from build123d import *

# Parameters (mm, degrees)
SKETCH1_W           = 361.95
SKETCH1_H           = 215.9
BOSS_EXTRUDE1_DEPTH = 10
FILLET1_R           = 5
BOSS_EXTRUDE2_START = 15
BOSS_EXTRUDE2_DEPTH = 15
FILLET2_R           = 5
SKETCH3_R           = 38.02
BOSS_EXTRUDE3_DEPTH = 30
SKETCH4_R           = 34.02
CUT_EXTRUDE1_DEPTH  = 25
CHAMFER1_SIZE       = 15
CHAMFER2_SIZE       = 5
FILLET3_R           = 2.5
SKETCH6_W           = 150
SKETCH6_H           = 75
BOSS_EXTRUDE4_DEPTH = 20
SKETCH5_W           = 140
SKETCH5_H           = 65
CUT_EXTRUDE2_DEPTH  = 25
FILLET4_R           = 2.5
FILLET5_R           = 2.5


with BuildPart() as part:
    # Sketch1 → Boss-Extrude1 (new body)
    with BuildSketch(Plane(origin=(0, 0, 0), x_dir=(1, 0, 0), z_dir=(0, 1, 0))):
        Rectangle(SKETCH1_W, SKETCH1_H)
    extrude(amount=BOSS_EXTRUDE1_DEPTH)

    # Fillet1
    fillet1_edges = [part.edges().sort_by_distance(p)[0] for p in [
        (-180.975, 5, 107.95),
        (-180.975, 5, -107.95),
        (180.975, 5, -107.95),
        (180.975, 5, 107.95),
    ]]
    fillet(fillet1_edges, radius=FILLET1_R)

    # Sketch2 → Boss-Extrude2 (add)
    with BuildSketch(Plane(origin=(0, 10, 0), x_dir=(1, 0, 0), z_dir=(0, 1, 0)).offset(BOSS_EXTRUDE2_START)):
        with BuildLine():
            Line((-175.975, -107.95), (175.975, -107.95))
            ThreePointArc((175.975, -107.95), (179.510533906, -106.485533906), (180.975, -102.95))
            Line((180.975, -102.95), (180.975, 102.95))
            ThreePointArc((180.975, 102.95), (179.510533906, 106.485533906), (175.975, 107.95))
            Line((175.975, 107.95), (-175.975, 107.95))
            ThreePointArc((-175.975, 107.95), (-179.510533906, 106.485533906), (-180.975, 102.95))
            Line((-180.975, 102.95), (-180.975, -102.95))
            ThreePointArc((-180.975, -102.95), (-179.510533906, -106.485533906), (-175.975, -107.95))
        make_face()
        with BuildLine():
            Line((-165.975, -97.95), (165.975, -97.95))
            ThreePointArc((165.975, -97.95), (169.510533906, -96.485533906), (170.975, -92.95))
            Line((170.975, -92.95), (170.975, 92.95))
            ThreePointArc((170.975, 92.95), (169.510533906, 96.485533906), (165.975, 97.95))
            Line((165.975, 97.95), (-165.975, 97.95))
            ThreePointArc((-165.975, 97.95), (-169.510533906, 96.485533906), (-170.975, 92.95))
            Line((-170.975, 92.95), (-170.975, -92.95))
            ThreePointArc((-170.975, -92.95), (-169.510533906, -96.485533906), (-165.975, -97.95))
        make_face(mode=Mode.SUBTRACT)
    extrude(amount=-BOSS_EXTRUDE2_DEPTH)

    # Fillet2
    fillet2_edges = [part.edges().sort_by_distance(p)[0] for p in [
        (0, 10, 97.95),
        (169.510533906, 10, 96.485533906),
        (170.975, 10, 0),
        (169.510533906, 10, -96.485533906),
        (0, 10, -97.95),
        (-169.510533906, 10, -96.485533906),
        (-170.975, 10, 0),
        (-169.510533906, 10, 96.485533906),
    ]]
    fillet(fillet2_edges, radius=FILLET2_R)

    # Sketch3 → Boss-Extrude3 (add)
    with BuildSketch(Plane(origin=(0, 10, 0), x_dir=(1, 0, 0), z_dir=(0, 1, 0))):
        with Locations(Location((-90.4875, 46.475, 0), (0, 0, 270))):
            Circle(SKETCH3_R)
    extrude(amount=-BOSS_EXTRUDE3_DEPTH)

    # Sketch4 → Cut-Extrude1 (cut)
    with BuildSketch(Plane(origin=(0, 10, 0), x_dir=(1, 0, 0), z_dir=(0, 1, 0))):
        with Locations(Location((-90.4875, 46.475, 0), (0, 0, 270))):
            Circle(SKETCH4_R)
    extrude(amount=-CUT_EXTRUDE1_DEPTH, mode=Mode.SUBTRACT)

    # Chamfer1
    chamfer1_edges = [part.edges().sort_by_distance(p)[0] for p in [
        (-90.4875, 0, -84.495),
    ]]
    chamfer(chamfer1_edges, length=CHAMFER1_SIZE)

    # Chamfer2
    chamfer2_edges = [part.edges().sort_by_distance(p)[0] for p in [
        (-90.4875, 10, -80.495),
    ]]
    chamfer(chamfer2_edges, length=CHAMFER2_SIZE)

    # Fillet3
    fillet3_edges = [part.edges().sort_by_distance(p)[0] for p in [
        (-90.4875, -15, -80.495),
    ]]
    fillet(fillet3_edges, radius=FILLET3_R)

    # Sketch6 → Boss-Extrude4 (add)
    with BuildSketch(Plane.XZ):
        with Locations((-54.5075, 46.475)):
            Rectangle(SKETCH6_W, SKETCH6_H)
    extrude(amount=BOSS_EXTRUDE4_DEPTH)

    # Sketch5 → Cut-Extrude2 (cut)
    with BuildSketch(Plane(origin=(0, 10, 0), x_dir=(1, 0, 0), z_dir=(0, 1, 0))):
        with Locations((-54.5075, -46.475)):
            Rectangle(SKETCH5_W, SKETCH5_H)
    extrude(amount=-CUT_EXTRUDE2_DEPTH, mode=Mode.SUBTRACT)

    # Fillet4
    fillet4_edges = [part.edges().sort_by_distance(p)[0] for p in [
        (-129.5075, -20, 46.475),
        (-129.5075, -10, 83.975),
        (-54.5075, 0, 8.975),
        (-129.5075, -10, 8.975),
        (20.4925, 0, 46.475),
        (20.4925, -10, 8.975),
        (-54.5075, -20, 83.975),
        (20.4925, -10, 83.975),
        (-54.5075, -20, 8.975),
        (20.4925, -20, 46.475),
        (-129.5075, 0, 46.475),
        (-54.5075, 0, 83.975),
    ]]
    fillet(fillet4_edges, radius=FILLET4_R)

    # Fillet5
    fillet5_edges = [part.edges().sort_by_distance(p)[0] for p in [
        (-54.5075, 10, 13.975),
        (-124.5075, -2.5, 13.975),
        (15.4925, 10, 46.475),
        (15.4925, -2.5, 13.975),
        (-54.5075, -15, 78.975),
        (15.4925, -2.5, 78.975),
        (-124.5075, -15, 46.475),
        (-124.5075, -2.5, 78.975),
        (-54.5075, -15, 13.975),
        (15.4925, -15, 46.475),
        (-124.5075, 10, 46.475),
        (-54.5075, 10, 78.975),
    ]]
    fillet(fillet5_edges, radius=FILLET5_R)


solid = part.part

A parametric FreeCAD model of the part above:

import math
import FreeCAD as App
import Part
import Sketcher
from FreeCAD import Vector
Q = App.Units.Quantity


def edges_at(feature, points):
    """Names of the edges that pass closest to the given points."""
    edges = feature.Shape.Edges
    near = lambda p: min(range(len(edges)), key=lambda i: edges[i].distToShape(Part.Vertex(*p))[0])
    return sorted({f"Edge{near(p) + 1}" for p in points})

doc = App.newDocument("Part")
body = doc.addObject("PartDesign::Body", "Body")

# Sketch on XZ plane
sketch1 = body.newObject("Sketcher::SketchObject", "Sketch")
sketch1.AttachmentSupport = (doc.getObject("XZ_Plane"), [""])
sketch1.MapMode = "FlatFace"
sketch1.addGeometry([
    Part.LineSegment(Vector(-181, -108, 0), Vector(-181, 108, 0)),
    Part.LineSegment(Vector(-181, 108, 0), Vector(181, 108, 0)),
    Part.LineSegment(Vector(181, 108, 0), Vector(181, -108, 0)),
    Part.LineSegment(Vector(181, -108, 0), Vector(-181, -108, 0)),
], False)
sketch1.addConstraint([
    Sketcher.Constraint("Coincident", 0, 2, 1, 1),
    Sketcher.Constraint("Coincident", 1, 2, 2, 1),
    Sketcher.Constraint("Coincident", 2, 2, 3, 1),
    Sketcher.Constraint("Coincident", 3, 2, 0, 1),
    Sketcher.Constraint("Vertical", 0),
    Sketcher.Constraint("Horizontal", 1),
    Sketcher.Constraint("Vertical", 2),
    Sketcher.Constraint("Horizontal", 3),
    Sketcher.Constraint("Symmetric", 0, 2, 2, 2, -1, 1),
    Sketcher.Constraint("DistanceY", 0, 1, 0, 2, Q("215.9 mm")),
    Sketcher.Constraint("DistanceX", 1, 1, 1, 2, Q("361.95 mm")),
])
pad1 = body.newObject("PartDesign::Pad", "Pad")
pad1.Profile = sketch1
pad1.Length = 10
pad1.Reversed = True
doc.recompute()

fillet = body.newObject("PartDesign::Fillet", "Fillet")
fillet.Base = (pad1, edges_at(pad1, [
    (-180.975, 5, 107.95),
    (-180.975, 5, -107.95),
    (180.975, 5, -107.95),
    (180.975, 5, 107.95),
]))
fillet.Radius = 5

# Sketch on XZ plane
sketch2 = body.newObject("Sketcher::SketchObject", "Sketch001")
sketch2.AttachmentSupport = (doc.getObject("XZ_Plane"), [""])
sketch2.MapMode = "FlatFace"
sketch2.AttachmentOffset = App.Placement(Vector(0, 0, -25), App.Rotation())
sketch2.addGeometry([
    Part.LineSegment(Vector(-176, 108, 0), Vector(176, 108, 0)),  # 0
    Part.ArcOfCircle(Part.Circle(Vector(176, 103, 0), Vector(0, 0, 1), 5), math.radians(0), math.radians(90)),  # 1
    Part.LineSegment(Vector(181, 103, 0), Vector(181, -103, 0)),  # 2
    Part.ArcOfCircle(Part.Circle(Vector(176, -103, 0), Vector(0, 0, 1), 5), math.radians(-90), math.radians(0)),  # 3
    Part.LineSegment(Vector(176, -108, 0), Vector(-176, -108, 0)),  # 4
    Part.ArcOfCircle(Part.Circle(Vector(-176, -103, 0), Vector(0, 0, 1), 5), math.radians(180), math.radians(270)),  # 5
    Part.LineSegment(Vector(-181, -103, 0), Vector(-181, 103, 0)),  # 6
    Part.ArcOfCircle(Part.Circle(Vector(-176, 103, 0), Vector(0, 0, 1), 5), math.radians(90), math.radians(180)),  # 7
    Part.LineSegment(Vector(166, 98, 0), Vector(-166, 98, 0)),  # 8
    Part.ArcOfCircle(Part.Circle(Vector(-166, 93, 0), Vector(0, 0, 1), 5), math.radians(90), math.radians(180)),  # 9
    Part.LineSegment(Vector(-171, 93, 0), Vector(-171, -93, 0)),  # 10
    Part.ArcOfCircle(Part.Circle(Vector(-166, -93, 0), Vector(0, 0, 1), 5), math.radians(180), math.radians(270)),  # 11
    Part.LineSegment(Vector(-166, -98, 0), Vector(166, -98, 0)),  # 12
    Part.ArcOfCircle(Part.Circle(Vector(166, -93, 0), Vector(0, 0, 1), 5), math.radians(-90), math.radians(0)),  # 13
    Part.LineSegment(Vector(171, -93, 0), Vector(171, 93, 0)),  # 14
    Part.ArcOfCircle(Part.Circle(Vector(166, 93, 0), Vector(0, 0, 1), 5), math.radians(0), math.radians(90)),  # 15
], False)
sketch2.addConstraint([
    Sketcher.Constraint("Tangent", 0, 2, 1, 2),
    Sketcher.Constraint("Tangent", 1, 1, 2, 1),
    Sketcher.Constraint("Tangent", 2, 2, 3, 2),
    Sketcher.Constraint("Tangent", 3, 1, 4, 1),
    Sketcher.Constraint("Tangent", 4, 2, 5, 2),
    Sketcher.Constraint("Tangent", 5, 1, 6, 1),
    Sketcher.Constraint("Tangent", 6, 2, 7, 2),
    Sketcher.Constraint("Tangent", 7, 1, 0, 1),
    Sketcher.Constraint("Tangent", 8, 2, 9, 1),
    Sketcher.Constraint("Tangent", 9, 2, 10, 1),
    Sketcher.Constraint("Tangent", 10, 2, 11, 1),
    Sketcher.Constraint("Tangent", 11, 2, 12, 1),
    Sketcher.Constraint("Tangent", 12, 2, 13, 1),
    Sketcher.Constraint("Tangent", 13, 2, 14, 1),
    Sketcher.Constraint("Tangent", 14, 2, 15, 1),
    Sketcher.Constraint("Tangent", 15, 2, 8, 1),
    Sketcher.Constraint("Horizontal", 0),
    Sketcher.Constraint("Vertical", 2),
    Sketcher.Constraint("Horizontal", 4),
    Sketcher.Constraint("Vertical", 6),
    Sketcher.Constraint("Horizontal", 8),
    Sketcher.Constraint("Vertical", 10),
    Sketcher.Constraint("Horizontal", 12),
    Sketcher.Constraint("Vertical", 14),
    Sketcher.Constraint("Equal", 1, 3),
    Sketcher.Constraint("Equal", 3, 5),
    Sketcher.Constraint("Equal", 5, 7),
    Sketcher.Constraint("Equal", 7, 9),
    Sketcher.Constraint("Equal", 9, 11),
    Sketcher.Constraint("Equal", 11, 13),
    Sketcher.Constraint("Equal", 13, 15),
    Sketcher.Constraint("Symmetric", 1, 3, 5, 3, -1, 1),
    Sketcher.Constraint("Symmetric", 9, 3, 13, 3, -1, 1),
    Sketcher.Constraint("Radius", 1, Q("5 mm")),
    Sketcher.Constraint("DistanceY", 2, 2, 2, 1, Q("205.9 mm")),
    Sketcher.Constraint("DistanceY", 10, 2, 10, 1, Q("185.9 mm")),
    Sketcher.Constraint("DistanceX", 7, 3, 9, 3, Q("10 mm")),
    Sketcher.Constraint("DistanceX", 0, 1, 0, 2, Q("351.95 mm")),
])
pad2 = body.newObject("PartDesign::Pad", "Pad001")
pad2.Profile = sketch2
pad2.Length = 15
doc.recompute()

fillet2 = body.newObject("PartDesign::Fillet", "Fillet001")
fillet2.Base = (pad2, edges_at(pad2, [
    (0, 10, 97.95),
    (169.511, 10, 96.486),
    (170.975, 10, 0),
    (169.511, 10, -96.486),
    (0, 10, -97.95),
    (-169.511, 10, -96.486),
    (-170.975, 10, 0),
    (-169.511, 10, 96.486),
]))
fillet2.Radius = 5

# Sketch on XZ plane
sketch3 = body.newObject("Sketcher::SketchObject", "Sketch002")
sketch3.AttachmentSupport = (doc.getObject("XZ_Plane"), [""])
sketch3.MapMode = "FlatFace"
sketch3.AttachmentOffset = App.Placement(Vector(0, 0, -10), App.Rotation())
sketch3.addGeometry(Part.Circle(Vector(-90, -46, 0), Vector(0, 0, 1), 38), False)
sketch3.addConstraint([
    Sketcher.Constraint("Diameter", 0, Q("76.04 mm")),
    Sketcher.Constraint("DistanceY", 0, 3, -1, 1, Q("46.475 mm")),
    Sketcher.Constraint("DistanceX", 0, 3, -1, 1, Q("90.4875 mm")),
])
pad3 = body.newObject("PartDesign::Pad", "Pad002")
pad3.Profile = sketch3
pad3.Length = 30

# Sketch on XZ plane
sketch4 = body.newObject("Sketcher::SketchObject", "Sketch003")
sketch4.AttachmentSupport = (doc.getObject("XZ_Plane"), [""])
sketch4.MapMode = "FlatFace"
sketch4.AttachmentOffset = App.Placement(Vector(0, 0, -10), App.Rotation())
sketch4.addGeometry(Part.Circle(Vector(-90, -46, 0), Vector(0, 0, 1), 34), False)
sketch4.addConstraint([
    Sketcher.Constraint("Diameter", 0, Q("68.04 mm")),
    Sketcher.Constraint("DistanceY", 0, 3, -1, 1, Q("46.475 mm")),
    Sketcher.Constraint("DistanceX", 0, 3, -1, 1, Q("90.4875 mm")),
])
pocket1 = body.newObject("PartDesign::Pocket", "Pocket")
pocket1.Profile = sketch4
pocket1.Length = 25
pocket1.Reversed = True
doc.recompute()

chamfer = body.newObject("PartDesign::Chamfer", "Chamfer")
chamfer.Base = (pocket1, edges_at(pocket1, [(-90.487, 0, -84.495)]))
chamfer.Size = 15
doc.recompute()

chamfer2 = body.newObject("PartDesign::Chamfer", "Chamfer001")
chamfer2.Base = (chamfer, edges_at(chamfer, [(-90.487, 10, -80.495)]))
chamfer2.Size = 5
doc.recompute()

fillet3 = body.newObject("PartDesign::Fillet", "Fillet002")
fillet3.Base = (chamfer2, edges_at(chamfer2, [(-90.487, -15, -80.495)]))
fillet3.Radius = 2.5

# Sketch on XZ plane
sketch5 = body.newObject("Sketcher::SketchObject", "Sketch004")
sketch5.AttachmentSupport = (doc.getObject("XZ_Plane"), [""])
sketch5.MapMode = "FlatFace"
sketch5.addGeometry([
    Part.LineSegment(Vector(-130, 84, 0), Vector(-130, 9, 0)),
    Part.LineSegment(Vector(-130, 9, 0), Vector(20, 9, 0)),
    Part.LineSegment(Vector(20, 9, 0), Vector(20, 84, 0)),
    Part.LineSegment(Vector(20, 84, 0), Vector(-130, 84, 0)),
], False)
sketch5.addConstraint([
    Sketcher.Constraint("Coincident", 0, 2, 1, 1),
    Sketcher.Constraint("Coincident", 1, 2, 2, 1),
    Sketcher.Constraint("Coincident", 2, 2, 3, 1),
    Sketcher.Constraint("Coincident", 3, 2, 0, 1),
    Sketcher.Constraint("Vertical", 0),
    Sketcher.Constraint("Horizontal", 1),
    Sketcher.Constraint("Vertical", 2),
    Sketcher.Constraint("Horizontal", 3),
    Sketcher.Constraint("DistanceX", 1, 1, 1, 2, Q("150 mm")),
    Sketcher.Constraint("DistanceY", 0, 2, 0, 1, Q("75 mm")),
    Sketcher.Constraint("DistanceY", -1, 1, 0, 2, Q("8.975 mm")),
    Sketcher.Constraint("DistanceX", 0, 2, -1, 1, Q("129.5075 mm")),
])
pad4 = body.newObject("PartDesign::Pad", "Pad003")
pad4.Profile = sketch5
pad4.Length = 20

# Sketch on XZ plane
sketch6 = body.newObject("Sketcher::SketchObject", "Sketch005")
sketch6.AttachmentSupport = (doc.getObject("XZ_Plane"), [""])
sketch6.MapMode = "FlatFace"
sketch6.AttachmentOffset = App.Placement(Vector(0, 0, -10), App.Rotation())
sketch6.addGeometry([
    Part.LineSegment(Vector(-125, 14, 0), Vector(-125, 79, 0)),
    Part.LineSegment(Vector(-125, 79, 0), Vector(15, 79, 0)),
    Part.LineSegment(Vector(15, 79, 0), Vector(15, 14, 0)),
    Part.LineSegment(Vector(15, 14, 0), Vector(-125, 14, 0)),
], False)
sketch6.addConstraint([
    Sketcher.Constraint("Coincident", 0, 2, 1, 1),
    Sketcher.Constraint("Coincident", 1, 2, 2, 1),
    Sketcher.Constraint("Coincident", 2, 2, 3, 1),
    Sketcher.Constraint("Coincident", 3, 2, 0, 1),
    Sketcher.Constraint("Vertical", 0),
    Sketcher.Constraint("Horizontal", 1),
    Sketcher.Constraint("Vertical", 2),
    Sketcher.Constraint("Horizontal", 3),
    Sketcher.Constraint("DistanceX", 1, 1, 1, 2, Q("140 mm")),
    Sketcher.Constraint("DistanceY", 0, 1, 0, 2, Q("65 mm")),
    Sketcher.Constraint("DistanceY", -1, 1, 0, 2, Q("78.975 mm")),
    Sketcher.Constraint("DistanceX", 0, 2, -1, 1, Q("124.5075 mm")),
])
pocket2 = body.newObject("PartDesign::Pocket", "Pocket001")
pocket2.Profile = sketch6
pocket2.Length = 25
pocket2.Reversed = True
doc.recompute()

fillet4 = body.newObject("PartDesign::Fillet", "Fillet003")
fillet4.Base = (pocket2, edges_at(pocket2, [
    (-129.507, -20, 46.475),
    (-129.507, -10, 83.975),
    (-54.508, 0, 8.975),
    (-129.507, -10, 8.975),
    (20.492, 0, 46.475),
    (20.492, -10, 8.975),
    (-54.508, -20, 83.975),
    (20.492, -10, 83.975),
    (-54.508, -20, 8.975),
    (20.492, -20, 46.475),
    (-129.507, 0, 46.475),
    (-54.508, 0, 83.975),
]))
fillet4.Radius = 2.5
doc.recompute()

fillet5 = body.newObject("PartDesign::Fillet", "Fillet004")
fillet5.Base = (fillet4, edges_at(fillet4, [
    (-54.508, 10, 13.975),
    (-124.507, -2.5, 13.975),
    (15.492, 10, 46.475),
    (15.492, -2.5, 13.975),
    (-54.508, -15, 78.975),
    (15.492, -2.5, 78.975),
    (-124.507, -15, 46.475),
    (-124.507, -2.5, 78.975),
    (-54.508, -15, 13.975),
    (15.492, -15, 46.475),
    (-124.507, 10, 46.475),
    (-54.508, 10, 78.975),
]))
fillet5.Radius = 2.5

doc.recompute()
